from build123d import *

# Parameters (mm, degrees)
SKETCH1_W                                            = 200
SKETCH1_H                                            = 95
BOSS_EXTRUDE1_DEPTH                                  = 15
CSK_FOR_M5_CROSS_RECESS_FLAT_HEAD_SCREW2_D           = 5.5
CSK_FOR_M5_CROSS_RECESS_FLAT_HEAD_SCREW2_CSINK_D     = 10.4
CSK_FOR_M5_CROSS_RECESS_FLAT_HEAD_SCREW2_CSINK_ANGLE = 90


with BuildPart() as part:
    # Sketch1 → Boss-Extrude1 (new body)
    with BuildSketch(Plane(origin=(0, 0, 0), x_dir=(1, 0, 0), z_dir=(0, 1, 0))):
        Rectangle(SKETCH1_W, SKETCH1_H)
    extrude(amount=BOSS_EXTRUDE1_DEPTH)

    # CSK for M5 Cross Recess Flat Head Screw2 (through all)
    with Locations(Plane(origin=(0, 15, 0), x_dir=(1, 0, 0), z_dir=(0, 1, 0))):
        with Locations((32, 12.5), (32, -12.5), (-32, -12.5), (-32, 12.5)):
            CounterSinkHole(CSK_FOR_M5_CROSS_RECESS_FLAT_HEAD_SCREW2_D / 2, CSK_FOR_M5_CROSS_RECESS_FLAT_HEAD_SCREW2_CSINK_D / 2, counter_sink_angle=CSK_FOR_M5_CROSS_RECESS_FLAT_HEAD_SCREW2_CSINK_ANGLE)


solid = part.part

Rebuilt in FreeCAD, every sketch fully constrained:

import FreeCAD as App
import Part
import Sketcher
from FreeCAD import Vector
Q = App.Units.Quantity


def add_polygon(sketch, points):
    """Adds a closed chain of lines whose ends are joined by coincident constraints."""
    first, n = sketch.GeometryCount, len(points)
    for a, b in zip(points, points[1:] + points[:1]):
        sketch.addGeometry(Part.LineSegment(App.Vector(*a, 0), App.Vector(*b, 0)), False)
    for i in range(n):
        sketch.addConstraint(Sketcher.Constraint("Coincident", first + i, 2, first + (i + 1) % n, 1))

doc = App.newDocument("Part")
body = doc.addObject("PartDesign::Body", "Body")

sketch1 = body.newObject("Sketcher::SketchObject", "Sketch")
sketch1.AttachmentSupport = (doc.getObject("XZ_Plane"), [""])
sketch1.MapMode = "FlatFace"
add_polygon(sketch1, [(-100, -48), (-100, 48), (100, 48), (100, -48)])
sketch1.addConstraint([
    Sketcher.Constraint("Vertical", 0),
    Sketcher.Constraint("Horizontal", 1),
    Sketcher.Constraint("Vertical", 2),
    Sketcher.Constraint("Horizontal", 3),
    Sketcher.Constraint("Symmetric", 0, 2, 2, 2, -1, 1),
    Sketcher.Constraint("DistanceX", 1, 1, 1, 2, Q("200 mm")),
    Sketcher.Constraint("DistanceY", 0, 1, 0, 2, Q("95 mm")),
])
pad1 = body.newObject("PartDesign::Pad", "Pad")
pad1.Profile = sketch1
pad1.Length = 15
pad1.Reversed = True

sketch2 = body.newObject("Sketcher::SketchObject", "Sketch001")
sketch2.AttachmentSupport = (doc.getObject("XZ_Plane"), [""])
sketch2.MapMode = "FlatFace"
sketch2.AttachmentOffset = App.Placement(Vector(0, 0, -15), App.Rotation())
sketch2.addGeometry([
    Part.Circle(Vector(32, -12.5, 0), Vector(0, 0, 1), 2.8),
    Part.Circle(Vector(32, 12.5, 0), Vector(0, 0, 1), 2.8),
    Part.Circle(Vector(-32, 12.5, 0), Vector(0, 0, 1), 2.8),
    Part.Circle(Vector(-32, -12.5, 0), Vector(0, 0, 1), 2.8),
], False)
sketch2.addConstraint([
    Sketcher.Constraint("Equal", 0, 1),
    Sketcher.Constraint("Equal", 1, 2),
    Sketcher.Constraint("Equal", 2, 3),
    Sketcher.Constraint("Symmetric", 0, 3, 2, 3, -1, 1),
    Sketcher.Constraint("Symmetric", 1, 3, 3, 3, -1, 1),
    Sketcher.Constraint("Symmetric", 1, 3, 2, 3, -2),
    Sketcher.Constraint("Diameter", 0, Q("5.5 mm")),
    Sketcher.Constraint("DistanceX", -1, 1, 0, 3, Q("32 mm")),
    Sketcher.Constraint("DistanceY", 0, 3, 1, 3, Q("25 mm")),
])
doc.recompute()
hole = body.newObject("PartDesign::Hole", "Hole")
hole.Profile = sketch2
hole.ThreadType = "None"
hole.Diameter = 5.5
hole.DepthType = "ThroughAll"
hole.HoleCutType = "Countersink"
hole.HoleCutDiameter = 10.4
hole.HoleCutCountersinkAngle = 90
hole.Reversed = True

doc.recompute()
